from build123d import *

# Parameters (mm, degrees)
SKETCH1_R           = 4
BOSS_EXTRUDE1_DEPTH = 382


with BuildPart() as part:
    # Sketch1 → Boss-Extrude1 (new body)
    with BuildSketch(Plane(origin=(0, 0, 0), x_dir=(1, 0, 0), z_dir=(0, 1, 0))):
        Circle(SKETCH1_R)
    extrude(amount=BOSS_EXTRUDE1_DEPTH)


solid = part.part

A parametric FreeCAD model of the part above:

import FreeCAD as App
import Part
import Sketcher

V = App.Vector
Q = App.Units.Quantity

doc = App.newDocument("Part")
params = doc.addObject("Spreadsheet::Sheet", "Params")
for row, (alias, value) in enumerate([
    ("sketch1_diameter", "8 mm"),
    ("pad1_length", "382 mm"),
], start=1):
    params.set(f"A{row}", alias)
    params.set(f"B{row}", "=" + value)
    params.setAlias(f"B{row}", alias)

body = doc.addObject("PartDesign::Body", "Body")

sketch1 = body.newObject("Sketcher::SketchObject", "Sketch")
sketch1.AttachmentSupport = (doc.getObject("XZ_Plane"), [""])
sketch1.MapMode = "FlatFace"
sketch1.addGeometry(Part.Circle(V(0, 0, 0), V(0, 0, 1), 4), False)
sketch1.addConstraint(Sketcher.Constraint("Coincident", 0, 3, -1, 1))
sketch1.addConstraint(Sketcher.Constraint("Diameter", 0, Q("8 mm")))
sketch1.setExpression("Constraints[1]", "Params.sketch1_diameter")
pad1 = body.newObject("PartDesign::Pad", "Pad")
pad1.Profile = sketch1
pad1.setExpression("Length", "Params.pad1_length")
pad1.Reversed = True

doc.recompute()
